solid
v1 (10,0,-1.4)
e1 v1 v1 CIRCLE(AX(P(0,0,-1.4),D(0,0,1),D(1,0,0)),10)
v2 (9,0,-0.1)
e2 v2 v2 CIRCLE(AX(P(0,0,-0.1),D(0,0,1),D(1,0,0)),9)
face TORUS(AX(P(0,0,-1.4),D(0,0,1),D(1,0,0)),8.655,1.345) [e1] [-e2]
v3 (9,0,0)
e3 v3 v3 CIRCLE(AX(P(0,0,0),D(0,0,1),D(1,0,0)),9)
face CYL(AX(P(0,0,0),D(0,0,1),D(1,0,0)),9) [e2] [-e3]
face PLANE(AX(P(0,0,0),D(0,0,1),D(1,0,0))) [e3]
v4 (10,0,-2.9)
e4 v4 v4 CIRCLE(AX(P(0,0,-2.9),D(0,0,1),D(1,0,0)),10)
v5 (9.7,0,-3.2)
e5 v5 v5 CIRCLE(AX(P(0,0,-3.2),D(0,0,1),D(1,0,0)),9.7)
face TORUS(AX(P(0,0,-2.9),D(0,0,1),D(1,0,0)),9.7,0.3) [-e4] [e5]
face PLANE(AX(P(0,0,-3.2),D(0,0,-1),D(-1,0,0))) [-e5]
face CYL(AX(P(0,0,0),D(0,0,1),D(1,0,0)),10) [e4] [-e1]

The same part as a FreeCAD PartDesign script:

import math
import FreeCAD as App
import Part
import Sketcher

V = App.Vector
Q = App.Units.Quantity

doc = App.newDocument("Part")
body = doc.addObject("PartDesign::Body", "Body")

# Sketch on XZ plane
sketch1 = body.newObject("Sketcher::SketchObject", "Sketch")
sketch1.AttachmentSupport = (doc.getObject("XZ_Plane"), [""])
sketch1.MapMode = "FlatFace"
sketch1.addGeometry(Part.LineSegment(V(0, -3.2, 0), V(0, 0, 0)), False)
sketch1.addGeometry(Part.LineSegment(V(0, 0, 0), V(9, 0, 0)), False)
sketch1.addGeometry(Part.LineSegment(V(9, 0, 0), V(9, -0.1, 0)), False)
sketch1.addGeometry(Part.ArcOfCircle(Part.Circle(V(8.65, -1.4, 0), V(0, 0, 1), 1.35), math.radians(0), math.radians(75)), False)
sketch1.addGeometry(Part.LineSegment(V(10, -1.4, 0), V(10, -2.9, 0)), False)
sketch1.addGeometry(Part.ArcOfCircle(Part.Circle(V(9.7, -2.9, 0), V(0, 0, 1), 0.3), math.radians(-90), math.radians(0)), False)
sketch1.addGeometry(Part.LineSegment(V(9.7, -3.2, 0), V(0, -3.2, 0)), False)
sketch1.addConstraint(Sketcher.Constraint("Coincident", 0, 2, 1, 1))
sketch1.addConstraint(Sketcher.Constraint("Coincident", 1, 2, 2, 1))
sketch1.addConstraint(Sketcher.Constraint("Coincident", 2, 2, 3, 2))
sketch1.addConstraint(Sketcher.Constraint("Tangent", 3, 1, 4, 1))
sketch1.addConstraint(Sketcher.Constraint("Tangent", 4, 2, 5, 2))
sketch1.addConstraint(Sketcher.Constraint("Tangent", 5, 1, 6, 1))
sketch1.addConstraint(Sketcher.Constraint("Coincident", 6, 2, 0, 1))
sketch1.addConstraint(Sketcher.Constraint("Vertical", 0))
sketch1.addConstraint(Sketcher.Constraint("Horizontal", 1))
sketch1.addConstraint(Sketcher.Constraint("Vertical", 2))
sketch1.addConstraint(Sketcher.Constraint("Vertical", 4))
sketch1.addConstraint(Sketcher.Constraint("Horizontal", 6))
sketch1.addConstraint(Sketcher.Constraint("Coincident", 0, 2, -1, 1))
sketch1.addConstraint(Sketcher.Constraint("Radius", 5, Q("0.3 mm")))
sketch1.addConstraint(Sketcher.Constraint("DistanceX", 1, 1, 1, 2, Q("9 mm")))
sketch1.addConstraint(Sketcher.Constraint("DistanceX", 6, 2, 6, 1, Q("9.7 mm")))
sketch1.addConstraint(Sketcher.Constraint("DistanceY", 0, 1, 0, 2, Q("3.2 mm")))
sketch1.addConstraint(Sketcher.Constraint("DistanceY", 2, 2, 2, 1, Q("0.1 mm")))
sketch1.addConstraint(Sketcher.Constraint("DistanceY", 4, 2, 4, 1, Q("1.5 mm")))
revolution = body.newObject("PartDesign::Revolution", "Revolution")
revolution.Profile = sketch1
revolution.ReferenceAxis = (sketch1, ["V_Axis"])
revolution.Angle = 360

doc.recompute()
